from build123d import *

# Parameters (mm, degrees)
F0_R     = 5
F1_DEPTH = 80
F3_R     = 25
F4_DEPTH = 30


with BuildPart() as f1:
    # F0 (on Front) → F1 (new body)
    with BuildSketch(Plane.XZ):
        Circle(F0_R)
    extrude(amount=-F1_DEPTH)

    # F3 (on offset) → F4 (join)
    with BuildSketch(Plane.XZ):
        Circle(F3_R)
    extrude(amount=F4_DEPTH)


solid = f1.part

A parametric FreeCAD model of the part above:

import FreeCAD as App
import Part
import Sketcher
from FreeCAD import Vector

doc = App.newDocument("Part")
body = doc.addObject("PartDesign::Body", "Body")

# Sketch on XZ plane
sketch1 = body.newObject("Sketcher::SketchObject", "Sketch")
sketch1.AttachmentSupport = (doc.getObject("XZ_Plane"), [""])
sketch1.MapMode = "FlatFace"
sketch1.addGeometry(Part.Circle(Vector(0, 0, 0), Vector(0, 0, 1), 5), False)
sketch1.addConstraint([
    Sketcher.Constraint("Coincident", 0, 3, -1, 1),
    Sketcher.Constraint("Diameter", 0, 10.0),
])
pad1 = body.newObject("PartDesign::Pad", "Pad")
pad1.Profile = sketch1
pad1.Length = 80
pad1.Reversed = True

# Sketch on XZ plane
sketch2 = body.newObject("Sketcher::SketchObject", "Sketch001")
sketch2.AttachmentSupport = (doc.getObject("XZ_Plane"), [""])
sketch2.MapMode = "FlatFace"
sketch2.addGeometry(Part.Circle(Vector(0, 0, 0), Vector(0, 0, 1), 25), False)
sketch2.addConstraint([
    Sketcher.Constraint("Coincident", 0, 3, -1, 1),
    Sketcher.Constraint("Diameter", 0, 50.0),
])
pad2 = body.newObject("PartDesign::Pad", "Pad001")
pad2.Profile = sketch2
pad2.Length = 30

doc.recompute()
